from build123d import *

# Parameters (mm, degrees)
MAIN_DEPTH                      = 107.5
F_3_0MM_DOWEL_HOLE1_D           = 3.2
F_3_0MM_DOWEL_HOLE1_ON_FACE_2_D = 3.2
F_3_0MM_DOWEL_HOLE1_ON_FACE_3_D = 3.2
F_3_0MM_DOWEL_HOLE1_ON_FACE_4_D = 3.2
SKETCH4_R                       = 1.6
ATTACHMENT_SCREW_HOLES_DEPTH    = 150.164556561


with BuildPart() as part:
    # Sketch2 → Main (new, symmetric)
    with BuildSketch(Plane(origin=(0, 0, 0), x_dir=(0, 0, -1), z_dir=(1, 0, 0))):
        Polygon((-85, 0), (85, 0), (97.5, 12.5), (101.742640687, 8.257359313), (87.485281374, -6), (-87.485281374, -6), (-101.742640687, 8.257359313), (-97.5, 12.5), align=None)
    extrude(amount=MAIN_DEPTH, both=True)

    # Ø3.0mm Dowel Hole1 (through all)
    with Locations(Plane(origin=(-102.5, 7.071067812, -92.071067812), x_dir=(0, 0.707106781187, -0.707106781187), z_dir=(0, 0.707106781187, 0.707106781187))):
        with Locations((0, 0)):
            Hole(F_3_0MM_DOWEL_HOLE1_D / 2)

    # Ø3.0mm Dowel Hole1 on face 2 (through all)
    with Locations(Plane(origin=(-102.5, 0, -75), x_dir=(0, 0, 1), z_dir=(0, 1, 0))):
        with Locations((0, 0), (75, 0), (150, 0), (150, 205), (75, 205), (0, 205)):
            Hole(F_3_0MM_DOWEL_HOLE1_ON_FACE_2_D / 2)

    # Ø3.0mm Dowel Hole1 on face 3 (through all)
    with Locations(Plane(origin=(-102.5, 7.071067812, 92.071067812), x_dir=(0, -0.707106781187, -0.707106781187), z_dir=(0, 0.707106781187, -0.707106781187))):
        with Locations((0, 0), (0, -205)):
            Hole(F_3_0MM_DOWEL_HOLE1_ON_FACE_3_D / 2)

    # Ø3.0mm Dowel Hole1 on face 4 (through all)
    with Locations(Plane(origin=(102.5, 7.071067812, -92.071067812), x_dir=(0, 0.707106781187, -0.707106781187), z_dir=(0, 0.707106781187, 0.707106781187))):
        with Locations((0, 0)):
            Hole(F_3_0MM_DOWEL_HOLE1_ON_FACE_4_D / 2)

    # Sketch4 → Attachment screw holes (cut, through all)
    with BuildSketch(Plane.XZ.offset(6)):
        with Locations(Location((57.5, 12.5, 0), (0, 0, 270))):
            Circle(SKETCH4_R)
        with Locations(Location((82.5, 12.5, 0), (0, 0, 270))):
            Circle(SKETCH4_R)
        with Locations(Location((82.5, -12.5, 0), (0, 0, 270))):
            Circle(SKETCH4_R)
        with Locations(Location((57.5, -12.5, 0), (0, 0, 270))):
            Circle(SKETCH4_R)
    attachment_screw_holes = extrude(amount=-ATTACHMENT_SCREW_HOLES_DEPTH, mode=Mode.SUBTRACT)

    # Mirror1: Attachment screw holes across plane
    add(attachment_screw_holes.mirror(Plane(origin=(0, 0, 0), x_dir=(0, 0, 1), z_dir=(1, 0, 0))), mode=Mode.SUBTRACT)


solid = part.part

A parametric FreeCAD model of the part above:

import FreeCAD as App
import Part
import Sketcher
Q = App.Units.Quantity

doc = App.newDocument("Part")
body = doc.addObject("PartDesign::Body", "Body")

sketch1 = doc.addObject("Sketcher::SketchObject", "Sketch")
body.addObject(sketch1)
sketch1.AttachmentSupport = (doc.YZ_Plane, [""])
sketch1.MapMode = "FlatFace"
sketch1.addGeometry([
    Part.LineSegment(App.Vector(0, -85, 0), App.Vector(0, 85, 0)),
    Part.LineSegment(App.Vector(0, 85, 0), App.Vector(12, 98, 0)),
    Part.LineSegment(App.Vector(12, 98, 0), App.Vector(8, 102, 0)),
    Part.LineSegment(App.Vector(8, 102, 0), App.Vector(-6, 87, 0)),
    Part.LineSegment(App.Vector(-6, 87, 0), App.Vector(-6, -87, 0)),
    Part.LineSegment(App.Vector(-6, -87, 0), App.Vector(8, -102, 0)),
    Part.LineSegment(App.Vector(8, -102, 0), App.Vector(12, -98, 0)),
    Part.LineSegment(App.Vector(12, -98, 0), App.Vector(0, -85, 0)),
], False)
sketch1.addConstraint([
    Sketcher.Constraint("Coincident", 0, 2, 1, 1),
    Sketcher.Constraint("Coincident", 1, 2, 2, 1),
    Sketcher.Constraint("Coincident", 2, 2, 3, 1),
    Sketcher.Constraint("Coincident", 3, 2, 4, 1),
    Sketcher.Constraint("Coincident", 4, 2, 5, 1),
    Sketcher.Constraint("Coincident", 5, 2, 6, 1),
    Sketcher.Constraint("Coincident", 6, 2, 7, 1),
    Sketcher.Constraint("Coincident", 7, 2, 0, 1),
    Sketcher.Constraint("Vertical", 0),
    Sketcher.Constraint("Vertical", 4),
    Sketcher.Constraint("Symmetric", 0, 2, 7, 2, -1, 1),
    Sketcher.Constraint("Symmetric", 2, 2, 5, 2, -1),
    Sketcher.Constraint("Symmetric", 1, 2, 6, 2, -1),
    Sketcher.Constraint("Perpendicular", 1, 2),
    Sketcher.Constraint("Perpendicular", 2, 3),
    Sketcher.Constraint("Perpendicular", 3, 5),
    Sketcher.Constraint("Perpendicular", 5, 6),
    Sketcher.Constraint("DistanceY", 0, 1, 0, 2, Q("170 mm")),
    Sketcher.Constraint("Distance", 2, Q("6 mm")),
    Sketcher.Constraint("DistanceX", 3, 2, -1, 1, Q("6 mm")),
    Sketcher.Constraint("DistanceY", 6, 2, 1, 2, Q("195 mm")),
])
pad1 = doc.addObject("PartDesign::Pad", "Pad")
body.addObject(pad1)
pad1.Profile = sketch1
pad1.Length = 215
pad1.Midplane = True

sketch2 = doc.addObject("Sketcher::SketchObject", "Sketch001")
body.addObject(sketch2)
sketch2.Placement = App.Placement(App.Vector(0, -42.5, -42.5), App.Rotation(App.Vector(0, 0.707106781, -0.707106781), App.Vector(-0.999999999, 0, 0), App.Vector(0, 0.707106781, 0.707106781), "ZXY"))
sketch2.addGeometry(Part.Circle(App.Vector(70.1, 102.5, 0), App.Vector(0, 0, 1), 1.6), False)
sketch2.addConstraint([
    Sketcher.Constraint("Diameter", 0, Q("3.2 mm")),
    Sketcher.Constraint("DistanceY", -1, 1, 0, 3, Q("102.5 mm")),
    Sketcher.Constraint("DistanceX", -1, 1, 0, 3, Q("70.104076 mm")),
])
doc.recompute()
hole = doc.addObject("PartDesign::Hole", "Hole")
body.addObject(hole)
hole.Profile = sketch2
hole.ThreadType = "None"
hole.Diameter = 3.2
hole.DepthType = "ThroughAll"

sketch3 = doc.addObject("Sketcher::SketchObject", "Sketch002")
body.addObject(sketch3)
sketch3.AttachmentSupport = (doc.XZ_Plane, [""])
sketch3.MapMode = "FlatFace"
sketch3.addGeometry([
    Part.Circle(App.Vector(-102.5, -75, 0), App.Vector(0, 0, 1), 1.6),
    Part.Circle(App.Vector(-102.5, 0, 0), App.Vector(0, 0, 1), 1.6),
    Part.Circle(App.Vector(-102.5, 75, 0), App.Vector(0, 0, 1), 1.6),
    Part.Circle(App.Vector(102.5, 75, 0), App.Vector(0, 0, 1), 1.6),
    Part.Circle(App.Vector(102.5, 0, 0), App.Vector(0, 0, 1), 1.6),
    Part.Circle(App.Vector(102.5, -75, 0), App.Vector(0, 0, 1), 1.6),
], False)
sketch3.addConstraint([
    Sketcher.Constraint("Equal", 0, 1),
    Sketcher.Constraint("Equal", 1, 2),
    Sketcher.Constraint("Equal", 2, 3),
    Sketcher.Constraint("Equal", 3, 4),
    Sketcher.Constraint("Equal", 4, 5),
    Sketcher.Constraint("Symmetric", 0, 3, 3, 3, -1, 1),
    Sketcher.Constraint("Symmetric", 1, 3, 4, 3, -1, 1),
    Sketcher.Constraint("Symmetric", 2, 3, 5, 3, -1, 1),
    Sketcher.Constraint("Symmetric", 2, 3, 3, 3, -2),
    Sketcher.Constraint("PointOnObject", 1, 3, -1),
    Sketcher.Constraint("Vertical", 0, 3, 1, 3),
    Sketcher.Constraint("Diameter", 0, Q("3.2 mm")),
    Sketcher.Constraint("DistanceY", 0, 3, -1, 1, Q("75 mm")),
    Sketcher.Constraint("DistanceX", 2, 3, 3, 3, Q("205 mm")),
])
doc.recompute()
hole2 = doc.addObject("PartDesign::Hole", "Hole001")
body.addObject(hole2)
hole2.Profile = sketch3
hole2.ThreadType = "None"
hole2.Diameter = 3.2
hole2.DepthType = "ThroughAll"
hole2.Reversed = True

sketch4 = doc.addObject("Sketcher::SketchObject", "Sketch003")
body.addObject(sketch4)
sketch4.Placement = App.Placement(App.Vector(0, -42.5, 42.5), App.Rotation(App.Vector(0, -0.707106781, -0.707106781), App.Vector(-0.999999999, 0, 0), App.Vector(0, 0.707106781, -0.707106781), "ZXY"))
sketch4.addGeometry([
    Part.Circle(App.Vector(-70.1, 102.5, 0), App.Vector(0, 0, 1), 1.6),
    Part.Circle(App.Vector(-70.1, -102.5, 0), App.Vector(0, 0, 1), 1.6),
], False)
sketch4.addConstraint([
    Sketcher.Constraint("Equal", 0, 1),
    Sketcher.Constraint("Symmetric", 0, 3, 1, 3, -1),
    Sketcher.Constraint("Diameter", 0, Q("3.2 mm")),
    Sketcher.Constraint("DistanceY", 1, 3, 0, 3, Q("205 mm")),
    Sketcher.Constraint("DistanceX", 0, 3, -1, 1, Q("70.104076 mm")),
])
doc.recompute()
hole3 = doc.addObject("PartDesign::Hole", "Hole002")
body.addObject(hole3)
hole3.Profile = sketch4
hole3.ThreadType = "None"
hole3.Diameter = 3.2
hole3.DepthType = "ThroughAll"

sketch5 = doc.addObject("Sketcher::SketchObject", "Sketch004")
body.addObject(sketch5)
sketch5.Placement = App.Placement(App.Vector(0, -42.5, -42.5), App.Rotation(App.Vector(0, 0.707106781, -0.707106781), App.Vector(-0.999999999, 0, 0), App.Vector(0, 0.707106781, 0.707106781), "ZXY"))
sketch5.addGeometry(Part.Circle(App.Vector(70.1, -102.5, 0), App.Vector(0, 0, 1), 1.6), False)
sketch5.addConstraint([
    Sketcher.Constraint("Diameter", 0, Q("3.2 mm")),
    Sketcher.Constraint("DistanceY", 0, 3, -1, 1, Q("102.5 mm")),
    Sketcher.Constraint("DistanceX", -1, 1, 0, 3, Q("70.104076 mm")),
])
doc.recompute()
hole4 = doc.addObject("PartDesign::Hole", "Hole003")
body.addObject(hole4)
hole4.Profile = sketch5
hole4.ThreadType = "None"
hole4.Diameter = 3.2
hole4.DepthType = "ThroughAll"

sketch6 = doc.addObject("Sketcher::SketchObject", "Sketch005")
body.addObject(sketch6)
sketch6.AttachmentSupport = (doc.XZ_Plane, [""])
sketch6.MapMode = "FlatFace"
sketch6.AttachmentOffset = App.Placement(App.Vector(0, 0, 6), App.Rotation())
sketch6.addGeometry([
    Part.Circle(App.Vector(57.5, 12.5, 0), App.Vector(0, 0, 1), 1.6),
    Part.Circle(App.Vector(82.5, 12.5, 0), App.Vector(0, 0, 1), 1.6),
    Part.Circle(App.Vector(82.5, -12.5, 0), App.Vector(0, 0, 1), 1.6),
    Part.Circle(App.Vector(57.5, -12.5, 0), App.Vector(0, 0, 1), 1.6),
], False)
sketch6.addConstraint([
    Sketcher.Constraint("Equal", 0, 1),
    Sketcher.Constraint("Equal", 1, 2),
    Sketcher.Constraint("Equal", 2, 3),
    Sketcher.Constraint("Symmetric", 1, 3, 2, 3, -1),
    Sketcher.Constraint("Symmetric", 0, 3, 3, 3, -1),
    Sketcher.Constraint("Horizontal", 0, 3, 1, 3),
    Sketcher.Constraint("Diameter", 0, Q("3.2 mm")),
    Sketcher.Constraint("DistanceX", 0, 3, 1, 3, Q("25 mm")),
    Sketcher.Constraint("DistanceY", 2, 3, 1, 3, Q("25 mm")),
    Sketcher.Constraint("DistanceX", -1, 1, 0, 3, Q("57.5 mm")),
])
pocket1 = doc.addObject("PartDesign::Pocket", "Pocket")
body.addObject(pocket1)
pocket1.Profile = sketch6
pocket1.Type = "ThroughAll"
doc.recompute()

mirrored = doc.addObject("PartDesign::Mirrored", "Mirrored")
body.addObject(mirrored)
mirrored.Originals = [pocket1]
mirrored.MirrorPlane = (doc.YZ_Plane, [""])
body.Tip = mirrored

doc.recompute()
